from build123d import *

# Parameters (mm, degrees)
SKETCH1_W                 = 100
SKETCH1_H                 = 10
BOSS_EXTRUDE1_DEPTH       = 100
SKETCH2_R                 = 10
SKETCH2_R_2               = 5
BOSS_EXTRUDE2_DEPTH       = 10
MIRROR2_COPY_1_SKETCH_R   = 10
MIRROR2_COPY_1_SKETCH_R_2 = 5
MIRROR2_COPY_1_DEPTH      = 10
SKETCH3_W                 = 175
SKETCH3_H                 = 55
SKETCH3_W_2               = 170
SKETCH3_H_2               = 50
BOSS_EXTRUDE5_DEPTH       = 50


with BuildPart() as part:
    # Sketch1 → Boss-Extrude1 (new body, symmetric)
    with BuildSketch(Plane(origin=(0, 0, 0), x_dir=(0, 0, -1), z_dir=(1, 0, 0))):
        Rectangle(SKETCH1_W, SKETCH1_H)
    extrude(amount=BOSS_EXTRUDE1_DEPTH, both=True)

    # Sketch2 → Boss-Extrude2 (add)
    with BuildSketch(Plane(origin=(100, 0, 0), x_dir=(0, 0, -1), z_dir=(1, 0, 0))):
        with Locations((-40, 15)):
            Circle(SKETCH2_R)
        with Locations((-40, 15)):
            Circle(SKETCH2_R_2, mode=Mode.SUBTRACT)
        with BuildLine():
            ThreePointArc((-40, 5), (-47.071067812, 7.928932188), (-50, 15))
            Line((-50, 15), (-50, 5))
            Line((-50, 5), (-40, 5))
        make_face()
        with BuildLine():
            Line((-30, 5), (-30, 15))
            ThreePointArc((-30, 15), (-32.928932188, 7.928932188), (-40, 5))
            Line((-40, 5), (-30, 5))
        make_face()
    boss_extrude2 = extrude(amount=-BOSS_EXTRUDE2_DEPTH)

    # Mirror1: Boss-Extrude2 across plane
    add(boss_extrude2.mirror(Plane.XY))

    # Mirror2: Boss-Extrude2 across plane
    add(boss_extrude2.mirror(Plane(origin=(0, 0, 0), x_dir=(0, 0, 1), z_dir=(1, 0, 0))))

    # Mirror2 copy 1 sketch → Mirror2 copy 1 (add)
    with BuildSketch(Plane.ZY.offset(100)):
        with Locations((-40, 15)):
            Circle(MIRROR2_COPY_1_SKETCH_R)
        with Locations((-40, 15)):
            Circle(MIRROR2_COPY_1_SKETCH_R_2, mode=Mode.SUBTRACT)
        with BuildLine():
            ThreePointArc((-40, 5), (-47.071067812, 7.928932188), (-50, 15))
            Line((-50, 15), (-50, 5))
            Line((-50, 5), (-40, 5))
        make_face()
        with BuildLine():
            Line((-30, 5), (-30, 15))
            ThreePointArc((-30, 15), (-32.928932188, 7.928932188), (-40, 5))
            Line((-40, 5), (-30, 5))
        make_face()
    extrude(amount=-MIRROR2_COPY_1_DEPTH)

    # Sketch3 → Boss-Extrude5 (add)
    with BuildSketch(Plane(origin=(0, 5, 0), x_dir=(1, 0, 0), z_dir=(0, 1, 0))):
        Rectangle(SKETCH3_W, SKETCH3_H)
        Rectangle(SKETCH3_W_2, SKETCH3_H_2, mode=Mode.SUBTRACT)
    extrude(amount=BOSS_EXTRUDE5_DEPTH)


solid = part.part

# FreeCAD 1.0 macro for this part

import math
import FreeCAD as App
import Part
import Sketcher
from FreeCAD import Vector
Q = App.Units.Quantity

doc = App.newDocument("Part")
body = doc.addObject("PartDesign::Body", "Body")

# Sketch on YZ plane
sketch1 = body.newObject("Sketcher::SketchObject", "Sketch")
sketch1.AttachmentSupport = (doc.getObject("YZ_Plane"), [""])
sketch1.MapMode = "FlatFace"
sketch1.addGeometry([
    Part.LineSegment(Vector(5, 50, 0), Vector(-5, 50, 0)),
    Part.LineSegment(Vector(-5, 50, 0), Vector(-5, -50, 0)),
    Part.LineSegment(Vector(-5, -50, 0), Vector(5, -50, 0)),
    Part.LineSegment(Vector(5, -50, 0), Vector(5, 50, 0)),
], False)
sketch1.addConstraint([
    Sketcher.Constraint("Coincident", 0, 2, 1, 1),
    Sketcher.Constraint("Coincident", 1, 2, 2, 1),
    Sketcher.Constraint("Coincident", 2, 2, 3, 1),
    Sketcher.Constraint("Coincident", 3, 2, 0, 1),
    Sketcher.Constraint("Horizontal", 0),
    Sketcher.Constraint("Vertical", 1),
    Sketcher.Constraint("Horizontal", 2),
    Sketcher.Constraint("Vertical", 3),
    Sketcher.Constraint("Symmetric", 0, 2, 2, 2, -1, 1),
    Sketcher.Constraint("DistanceX", 0, 2, 0, 1, Q("10 mm")),
    Sketcher.Constraint("DistanceY", 1, 2, 1, 1, Q("100 mm")),
])
pad1 = body.newObject("PartDesign::Pad", "Pad")
pad1.Profile = sketch1
pad1.Length = 200
pad1.Midplane = True

# Sketch on YZ plane
sketch2 = body.newObject("Sketcher::SketchObject", "Sketch001")
sketch2.AttachmentSupport = (doc.getObject("YZ_Plane"), [""])
sketch2.MapMode = "FlatFace"
sketch2.AttachmentOffset = App.Placement(Vector(0, 0, 100), App.Rotation())
sketch2.addGeometry([
    Part.LineSegment(Vector(15, 50, 0), Vector(5, 50, 0)),  # 0
    Part.LineSegment(Vector(5, 50, 0), Vector(5, 30, 0)),  # 1
    Part.LineSegment(Vector(5, 30, 0), Vector(15, 30, 0)),  # 2
    Part.ArcOfCircle(Part.Circle(Vector(15, 40, 0), Vector(0, 0, 1), 10), math.radians(-90), math.radians(90)),  # 3
    Part.Circle(Vector(15, 40, 0), Vector(0, 0, 1), 5),  # 4
], False)
sketch2.addConstraint([
    Sketcher.Constraint("Coincident", 0, 2, 1, 1),
    Sketcher.Constraint("Coincident", 1, 2, 2, 1),
    Sketcher.Constraint("Tangent", 2, 2, 3, 1),
    Sketcher.Constraint("Tangent", 3, 2, 0, 1),
    Sketcher.Constraint("Horizontal", 0),
    Sketcher.Constraint("Vertical", 1),
    Sketcher.Constraint("Horizontal", 2),
    Sketcher.Constraint("Coincident", 4, 3, 3, 3),
    Sketcher.Constraint("Diameter", 4, Q("10 mm")),
    Sketcher.Constraint("Radius", 3, Q("10 mm")),
    Sketcher.Constraint("DistanceX", 0, 2, 0, 1, Q("10 mm")),
    Sketcher.Constraint("DistanceX", -1, 1, 3, 3, Q("15 mm")),
    Sketcher.Constraint("DistanceY", -1, 1, 3, 3, Q("40 mm")),
])
pad2 = body.newObject("PartDesign::Pad", "Pad001")
pad2.Profile = sketch2
pad2.Length = 10
pad2.Reversed = True
doc.recompute()

mirrored = body.newObject("PartDesign::Mirrored", "Mirrored")
mirrored.Originals = [pad2]
mirrored.MirrorPlane = (doc.getObject("XY_Plane"), [""])
body.Tip = mirrored
doc.recompute()

mirrored2 = body.newObject("PartDesign::Mirrored", "Mirrored001")
mirrored2.Originals = [pad2]
mirrored2.MirrorPlane = (doc.getObject("YZ_Plane"), [""])
body.Tip = mirrored2

# Sketch on YZ plane
sketch3 = body.newObject("Sketcher::SketchObject", "Sketch002")
sketch3.AttachmentSupport = (doc.getObject("YZ_Plane"), [""])
sketch3.MapMode = "FlatFace"
sketch3.AttachmentOffset = App.Placement(Vector(0, 0, -100), App.Rotation())
sketch3.addGeometry([
    Part.LineSegment(Vector(15, -50, 0), Vector(5, -50, 0)),  # 0
    Part.LineSegment(Vector(5, -50, 0), Vector(5, -30, 0)),  # 1
    Part.LineSegment(Vector(5, -30, 0), Vector(15, -30, 0)),  # 2
    Part.ArcOfCircle(Part.Circle(Vector(15, -40, 0), Vector(0, 0, 1), 10), math.radians(-90), math.radians(90)),  # 3
    Part.Circle(Vector(15, -40, 0), Vector(0, 0, 1), 5),  # 4
], False)
sketch3.addConstraint([
    Sketcher.Constraint("Coincident", 0, 2, 1, 1),
    Sketcher.Constraint("Coincident", 1, 2, 2, 1),
    Sketcher.Constraint("Tangent", 2, 2, 3, 2),
    Sketcher.Constraint("Tangent", 3, 1, 0, 1),
    Sketcher.Constraint("Horizontal", 0),
    Sketcher.Constraint("Vertical", 1),
    Sketcher.Constraint("Horizontal", 2),
    Sketcher.Constraint("Coincident", 4, 3, 3, 3),
    Sketcher.Constraint("Diameter", 4, Q("10 mm")),
    Sketcher.Constraint("Radius", 3, Q("10 mm")),
    Sketcher.Constraint("DistanceX", 0, 2, 0, 1, Q("10 mm")),
    Sketcher.Constraint("DistanceX", -1, 1, 3, 3, Q("15 mm")),
    Sketcher.Constraint("DistanceY", 3, 3, -1, 1, Q("40 mm")),
])
pad3 = body.newObject("PartDesign::Pad", "Pad002")
pad3.Profile = sketch3
pad3.Length = 10

# Sketch on XZ plane
sketch4 = body.newObject("Sketcher::SketchObject", "Sketch003")
sketch4.AttachmentSupport = (doc.getObject("XZ_Plane"), [""])
sketch4.MapMode = "FlatFace"
sketch4.AttachmentOffset = App.Placement(Vector(0, 0, -5), App.Rotation())
sketch4.addGeometry([
    Part.LineSegment(Vector(-88, -28, 0), Vector(-88, 28, 0)),  # 0
    Part.LineSegment(Vector(-88, 28, 0), Vector(88, 28, 0)),  # 1
    Part.LineSegment(Vector(88, 28, 0), Vector(88, -28, 0)),  # 2
    Part.LineSegment(Vector(88, -28, 0), Vector(-88, -28, 0)),  # 3
    Part.LineSegment(Vector(85, 25, 0), Vector(-85, 25, 0)),  # 4
    Part.LineSegment(Vector(-85, 25, 0), Vector(-85, -25, 0)),  # 5
    Part.LineSegment(Vector(-85, -25, 0), Vector(85, -25, 0)),  # 6
    Part.LineSegment(Vector(85, -25, 0), Vector(85, 25, 0)),  # 7
], False)
sketch4.addConstraint([
    Sketcher.Constraint("Coincident", 0, 2, 1, 1),
    Sketcher.Constraint("Coincident", 1, 2, 2, 1),
    Sketcher.Constraint("Coincident", 2, 2, 3, 1),
    Sketcher.Constraint("Coincident", 3, 2, 0, 1),
    Sketcher.Constraint("Coincident", 4, 2, 5, 1),
    Sketcher.Constraint("Coincident", 5, 2, 6, 1),
    Sketcher.Constraint("Coincident", 6, 2, 7, 1),
    Sketcher.Constraint("Coincident", 7, 2, 4, 1),
    Sketcher.Constraint("Vertical", 0),
    Sketcher.Constraint("Horizontal", 1),
    Sketcher.Constraint("Vertical", 2),
    Sketcher.Constraint("Horizontal", 3),
    Sketcher.Constraint("Horizontal", 4),
    Sketcher.Constraint("Vertical", 5),
    Sketcher.Constraint("Horizontal", 6),
    Sketcher.Constraint("Vertical", 7),
    Sketcher.Constraint("Symmetric", 0, 2, 2, 2, -1, 1),
    Sketcher.Constraint("Symmetric", 4, 2, 6, 2, -1, 1),
    Sketcher.Constraint("DistanceX", 1, 1, 1, 2, Q("175 mm")),
    Sketcher.Constraint("DistanceX", 4, 2, 4, 1, Q("170 mm")),
    Sketcher.Constraint("DistanceY", 0, 1, 0, 2, Q("55 mm")),
    Sketcher.Constraint("DistanceY", 5, 2, 5, 1, Q("50 mm")),
])
pad4 = body.newObject("PartDesign::Pad", "Pad003")
pad4.Profile = sketch4
pad4.Length = 50
pad4.Reversed = True

doc.recompute()
